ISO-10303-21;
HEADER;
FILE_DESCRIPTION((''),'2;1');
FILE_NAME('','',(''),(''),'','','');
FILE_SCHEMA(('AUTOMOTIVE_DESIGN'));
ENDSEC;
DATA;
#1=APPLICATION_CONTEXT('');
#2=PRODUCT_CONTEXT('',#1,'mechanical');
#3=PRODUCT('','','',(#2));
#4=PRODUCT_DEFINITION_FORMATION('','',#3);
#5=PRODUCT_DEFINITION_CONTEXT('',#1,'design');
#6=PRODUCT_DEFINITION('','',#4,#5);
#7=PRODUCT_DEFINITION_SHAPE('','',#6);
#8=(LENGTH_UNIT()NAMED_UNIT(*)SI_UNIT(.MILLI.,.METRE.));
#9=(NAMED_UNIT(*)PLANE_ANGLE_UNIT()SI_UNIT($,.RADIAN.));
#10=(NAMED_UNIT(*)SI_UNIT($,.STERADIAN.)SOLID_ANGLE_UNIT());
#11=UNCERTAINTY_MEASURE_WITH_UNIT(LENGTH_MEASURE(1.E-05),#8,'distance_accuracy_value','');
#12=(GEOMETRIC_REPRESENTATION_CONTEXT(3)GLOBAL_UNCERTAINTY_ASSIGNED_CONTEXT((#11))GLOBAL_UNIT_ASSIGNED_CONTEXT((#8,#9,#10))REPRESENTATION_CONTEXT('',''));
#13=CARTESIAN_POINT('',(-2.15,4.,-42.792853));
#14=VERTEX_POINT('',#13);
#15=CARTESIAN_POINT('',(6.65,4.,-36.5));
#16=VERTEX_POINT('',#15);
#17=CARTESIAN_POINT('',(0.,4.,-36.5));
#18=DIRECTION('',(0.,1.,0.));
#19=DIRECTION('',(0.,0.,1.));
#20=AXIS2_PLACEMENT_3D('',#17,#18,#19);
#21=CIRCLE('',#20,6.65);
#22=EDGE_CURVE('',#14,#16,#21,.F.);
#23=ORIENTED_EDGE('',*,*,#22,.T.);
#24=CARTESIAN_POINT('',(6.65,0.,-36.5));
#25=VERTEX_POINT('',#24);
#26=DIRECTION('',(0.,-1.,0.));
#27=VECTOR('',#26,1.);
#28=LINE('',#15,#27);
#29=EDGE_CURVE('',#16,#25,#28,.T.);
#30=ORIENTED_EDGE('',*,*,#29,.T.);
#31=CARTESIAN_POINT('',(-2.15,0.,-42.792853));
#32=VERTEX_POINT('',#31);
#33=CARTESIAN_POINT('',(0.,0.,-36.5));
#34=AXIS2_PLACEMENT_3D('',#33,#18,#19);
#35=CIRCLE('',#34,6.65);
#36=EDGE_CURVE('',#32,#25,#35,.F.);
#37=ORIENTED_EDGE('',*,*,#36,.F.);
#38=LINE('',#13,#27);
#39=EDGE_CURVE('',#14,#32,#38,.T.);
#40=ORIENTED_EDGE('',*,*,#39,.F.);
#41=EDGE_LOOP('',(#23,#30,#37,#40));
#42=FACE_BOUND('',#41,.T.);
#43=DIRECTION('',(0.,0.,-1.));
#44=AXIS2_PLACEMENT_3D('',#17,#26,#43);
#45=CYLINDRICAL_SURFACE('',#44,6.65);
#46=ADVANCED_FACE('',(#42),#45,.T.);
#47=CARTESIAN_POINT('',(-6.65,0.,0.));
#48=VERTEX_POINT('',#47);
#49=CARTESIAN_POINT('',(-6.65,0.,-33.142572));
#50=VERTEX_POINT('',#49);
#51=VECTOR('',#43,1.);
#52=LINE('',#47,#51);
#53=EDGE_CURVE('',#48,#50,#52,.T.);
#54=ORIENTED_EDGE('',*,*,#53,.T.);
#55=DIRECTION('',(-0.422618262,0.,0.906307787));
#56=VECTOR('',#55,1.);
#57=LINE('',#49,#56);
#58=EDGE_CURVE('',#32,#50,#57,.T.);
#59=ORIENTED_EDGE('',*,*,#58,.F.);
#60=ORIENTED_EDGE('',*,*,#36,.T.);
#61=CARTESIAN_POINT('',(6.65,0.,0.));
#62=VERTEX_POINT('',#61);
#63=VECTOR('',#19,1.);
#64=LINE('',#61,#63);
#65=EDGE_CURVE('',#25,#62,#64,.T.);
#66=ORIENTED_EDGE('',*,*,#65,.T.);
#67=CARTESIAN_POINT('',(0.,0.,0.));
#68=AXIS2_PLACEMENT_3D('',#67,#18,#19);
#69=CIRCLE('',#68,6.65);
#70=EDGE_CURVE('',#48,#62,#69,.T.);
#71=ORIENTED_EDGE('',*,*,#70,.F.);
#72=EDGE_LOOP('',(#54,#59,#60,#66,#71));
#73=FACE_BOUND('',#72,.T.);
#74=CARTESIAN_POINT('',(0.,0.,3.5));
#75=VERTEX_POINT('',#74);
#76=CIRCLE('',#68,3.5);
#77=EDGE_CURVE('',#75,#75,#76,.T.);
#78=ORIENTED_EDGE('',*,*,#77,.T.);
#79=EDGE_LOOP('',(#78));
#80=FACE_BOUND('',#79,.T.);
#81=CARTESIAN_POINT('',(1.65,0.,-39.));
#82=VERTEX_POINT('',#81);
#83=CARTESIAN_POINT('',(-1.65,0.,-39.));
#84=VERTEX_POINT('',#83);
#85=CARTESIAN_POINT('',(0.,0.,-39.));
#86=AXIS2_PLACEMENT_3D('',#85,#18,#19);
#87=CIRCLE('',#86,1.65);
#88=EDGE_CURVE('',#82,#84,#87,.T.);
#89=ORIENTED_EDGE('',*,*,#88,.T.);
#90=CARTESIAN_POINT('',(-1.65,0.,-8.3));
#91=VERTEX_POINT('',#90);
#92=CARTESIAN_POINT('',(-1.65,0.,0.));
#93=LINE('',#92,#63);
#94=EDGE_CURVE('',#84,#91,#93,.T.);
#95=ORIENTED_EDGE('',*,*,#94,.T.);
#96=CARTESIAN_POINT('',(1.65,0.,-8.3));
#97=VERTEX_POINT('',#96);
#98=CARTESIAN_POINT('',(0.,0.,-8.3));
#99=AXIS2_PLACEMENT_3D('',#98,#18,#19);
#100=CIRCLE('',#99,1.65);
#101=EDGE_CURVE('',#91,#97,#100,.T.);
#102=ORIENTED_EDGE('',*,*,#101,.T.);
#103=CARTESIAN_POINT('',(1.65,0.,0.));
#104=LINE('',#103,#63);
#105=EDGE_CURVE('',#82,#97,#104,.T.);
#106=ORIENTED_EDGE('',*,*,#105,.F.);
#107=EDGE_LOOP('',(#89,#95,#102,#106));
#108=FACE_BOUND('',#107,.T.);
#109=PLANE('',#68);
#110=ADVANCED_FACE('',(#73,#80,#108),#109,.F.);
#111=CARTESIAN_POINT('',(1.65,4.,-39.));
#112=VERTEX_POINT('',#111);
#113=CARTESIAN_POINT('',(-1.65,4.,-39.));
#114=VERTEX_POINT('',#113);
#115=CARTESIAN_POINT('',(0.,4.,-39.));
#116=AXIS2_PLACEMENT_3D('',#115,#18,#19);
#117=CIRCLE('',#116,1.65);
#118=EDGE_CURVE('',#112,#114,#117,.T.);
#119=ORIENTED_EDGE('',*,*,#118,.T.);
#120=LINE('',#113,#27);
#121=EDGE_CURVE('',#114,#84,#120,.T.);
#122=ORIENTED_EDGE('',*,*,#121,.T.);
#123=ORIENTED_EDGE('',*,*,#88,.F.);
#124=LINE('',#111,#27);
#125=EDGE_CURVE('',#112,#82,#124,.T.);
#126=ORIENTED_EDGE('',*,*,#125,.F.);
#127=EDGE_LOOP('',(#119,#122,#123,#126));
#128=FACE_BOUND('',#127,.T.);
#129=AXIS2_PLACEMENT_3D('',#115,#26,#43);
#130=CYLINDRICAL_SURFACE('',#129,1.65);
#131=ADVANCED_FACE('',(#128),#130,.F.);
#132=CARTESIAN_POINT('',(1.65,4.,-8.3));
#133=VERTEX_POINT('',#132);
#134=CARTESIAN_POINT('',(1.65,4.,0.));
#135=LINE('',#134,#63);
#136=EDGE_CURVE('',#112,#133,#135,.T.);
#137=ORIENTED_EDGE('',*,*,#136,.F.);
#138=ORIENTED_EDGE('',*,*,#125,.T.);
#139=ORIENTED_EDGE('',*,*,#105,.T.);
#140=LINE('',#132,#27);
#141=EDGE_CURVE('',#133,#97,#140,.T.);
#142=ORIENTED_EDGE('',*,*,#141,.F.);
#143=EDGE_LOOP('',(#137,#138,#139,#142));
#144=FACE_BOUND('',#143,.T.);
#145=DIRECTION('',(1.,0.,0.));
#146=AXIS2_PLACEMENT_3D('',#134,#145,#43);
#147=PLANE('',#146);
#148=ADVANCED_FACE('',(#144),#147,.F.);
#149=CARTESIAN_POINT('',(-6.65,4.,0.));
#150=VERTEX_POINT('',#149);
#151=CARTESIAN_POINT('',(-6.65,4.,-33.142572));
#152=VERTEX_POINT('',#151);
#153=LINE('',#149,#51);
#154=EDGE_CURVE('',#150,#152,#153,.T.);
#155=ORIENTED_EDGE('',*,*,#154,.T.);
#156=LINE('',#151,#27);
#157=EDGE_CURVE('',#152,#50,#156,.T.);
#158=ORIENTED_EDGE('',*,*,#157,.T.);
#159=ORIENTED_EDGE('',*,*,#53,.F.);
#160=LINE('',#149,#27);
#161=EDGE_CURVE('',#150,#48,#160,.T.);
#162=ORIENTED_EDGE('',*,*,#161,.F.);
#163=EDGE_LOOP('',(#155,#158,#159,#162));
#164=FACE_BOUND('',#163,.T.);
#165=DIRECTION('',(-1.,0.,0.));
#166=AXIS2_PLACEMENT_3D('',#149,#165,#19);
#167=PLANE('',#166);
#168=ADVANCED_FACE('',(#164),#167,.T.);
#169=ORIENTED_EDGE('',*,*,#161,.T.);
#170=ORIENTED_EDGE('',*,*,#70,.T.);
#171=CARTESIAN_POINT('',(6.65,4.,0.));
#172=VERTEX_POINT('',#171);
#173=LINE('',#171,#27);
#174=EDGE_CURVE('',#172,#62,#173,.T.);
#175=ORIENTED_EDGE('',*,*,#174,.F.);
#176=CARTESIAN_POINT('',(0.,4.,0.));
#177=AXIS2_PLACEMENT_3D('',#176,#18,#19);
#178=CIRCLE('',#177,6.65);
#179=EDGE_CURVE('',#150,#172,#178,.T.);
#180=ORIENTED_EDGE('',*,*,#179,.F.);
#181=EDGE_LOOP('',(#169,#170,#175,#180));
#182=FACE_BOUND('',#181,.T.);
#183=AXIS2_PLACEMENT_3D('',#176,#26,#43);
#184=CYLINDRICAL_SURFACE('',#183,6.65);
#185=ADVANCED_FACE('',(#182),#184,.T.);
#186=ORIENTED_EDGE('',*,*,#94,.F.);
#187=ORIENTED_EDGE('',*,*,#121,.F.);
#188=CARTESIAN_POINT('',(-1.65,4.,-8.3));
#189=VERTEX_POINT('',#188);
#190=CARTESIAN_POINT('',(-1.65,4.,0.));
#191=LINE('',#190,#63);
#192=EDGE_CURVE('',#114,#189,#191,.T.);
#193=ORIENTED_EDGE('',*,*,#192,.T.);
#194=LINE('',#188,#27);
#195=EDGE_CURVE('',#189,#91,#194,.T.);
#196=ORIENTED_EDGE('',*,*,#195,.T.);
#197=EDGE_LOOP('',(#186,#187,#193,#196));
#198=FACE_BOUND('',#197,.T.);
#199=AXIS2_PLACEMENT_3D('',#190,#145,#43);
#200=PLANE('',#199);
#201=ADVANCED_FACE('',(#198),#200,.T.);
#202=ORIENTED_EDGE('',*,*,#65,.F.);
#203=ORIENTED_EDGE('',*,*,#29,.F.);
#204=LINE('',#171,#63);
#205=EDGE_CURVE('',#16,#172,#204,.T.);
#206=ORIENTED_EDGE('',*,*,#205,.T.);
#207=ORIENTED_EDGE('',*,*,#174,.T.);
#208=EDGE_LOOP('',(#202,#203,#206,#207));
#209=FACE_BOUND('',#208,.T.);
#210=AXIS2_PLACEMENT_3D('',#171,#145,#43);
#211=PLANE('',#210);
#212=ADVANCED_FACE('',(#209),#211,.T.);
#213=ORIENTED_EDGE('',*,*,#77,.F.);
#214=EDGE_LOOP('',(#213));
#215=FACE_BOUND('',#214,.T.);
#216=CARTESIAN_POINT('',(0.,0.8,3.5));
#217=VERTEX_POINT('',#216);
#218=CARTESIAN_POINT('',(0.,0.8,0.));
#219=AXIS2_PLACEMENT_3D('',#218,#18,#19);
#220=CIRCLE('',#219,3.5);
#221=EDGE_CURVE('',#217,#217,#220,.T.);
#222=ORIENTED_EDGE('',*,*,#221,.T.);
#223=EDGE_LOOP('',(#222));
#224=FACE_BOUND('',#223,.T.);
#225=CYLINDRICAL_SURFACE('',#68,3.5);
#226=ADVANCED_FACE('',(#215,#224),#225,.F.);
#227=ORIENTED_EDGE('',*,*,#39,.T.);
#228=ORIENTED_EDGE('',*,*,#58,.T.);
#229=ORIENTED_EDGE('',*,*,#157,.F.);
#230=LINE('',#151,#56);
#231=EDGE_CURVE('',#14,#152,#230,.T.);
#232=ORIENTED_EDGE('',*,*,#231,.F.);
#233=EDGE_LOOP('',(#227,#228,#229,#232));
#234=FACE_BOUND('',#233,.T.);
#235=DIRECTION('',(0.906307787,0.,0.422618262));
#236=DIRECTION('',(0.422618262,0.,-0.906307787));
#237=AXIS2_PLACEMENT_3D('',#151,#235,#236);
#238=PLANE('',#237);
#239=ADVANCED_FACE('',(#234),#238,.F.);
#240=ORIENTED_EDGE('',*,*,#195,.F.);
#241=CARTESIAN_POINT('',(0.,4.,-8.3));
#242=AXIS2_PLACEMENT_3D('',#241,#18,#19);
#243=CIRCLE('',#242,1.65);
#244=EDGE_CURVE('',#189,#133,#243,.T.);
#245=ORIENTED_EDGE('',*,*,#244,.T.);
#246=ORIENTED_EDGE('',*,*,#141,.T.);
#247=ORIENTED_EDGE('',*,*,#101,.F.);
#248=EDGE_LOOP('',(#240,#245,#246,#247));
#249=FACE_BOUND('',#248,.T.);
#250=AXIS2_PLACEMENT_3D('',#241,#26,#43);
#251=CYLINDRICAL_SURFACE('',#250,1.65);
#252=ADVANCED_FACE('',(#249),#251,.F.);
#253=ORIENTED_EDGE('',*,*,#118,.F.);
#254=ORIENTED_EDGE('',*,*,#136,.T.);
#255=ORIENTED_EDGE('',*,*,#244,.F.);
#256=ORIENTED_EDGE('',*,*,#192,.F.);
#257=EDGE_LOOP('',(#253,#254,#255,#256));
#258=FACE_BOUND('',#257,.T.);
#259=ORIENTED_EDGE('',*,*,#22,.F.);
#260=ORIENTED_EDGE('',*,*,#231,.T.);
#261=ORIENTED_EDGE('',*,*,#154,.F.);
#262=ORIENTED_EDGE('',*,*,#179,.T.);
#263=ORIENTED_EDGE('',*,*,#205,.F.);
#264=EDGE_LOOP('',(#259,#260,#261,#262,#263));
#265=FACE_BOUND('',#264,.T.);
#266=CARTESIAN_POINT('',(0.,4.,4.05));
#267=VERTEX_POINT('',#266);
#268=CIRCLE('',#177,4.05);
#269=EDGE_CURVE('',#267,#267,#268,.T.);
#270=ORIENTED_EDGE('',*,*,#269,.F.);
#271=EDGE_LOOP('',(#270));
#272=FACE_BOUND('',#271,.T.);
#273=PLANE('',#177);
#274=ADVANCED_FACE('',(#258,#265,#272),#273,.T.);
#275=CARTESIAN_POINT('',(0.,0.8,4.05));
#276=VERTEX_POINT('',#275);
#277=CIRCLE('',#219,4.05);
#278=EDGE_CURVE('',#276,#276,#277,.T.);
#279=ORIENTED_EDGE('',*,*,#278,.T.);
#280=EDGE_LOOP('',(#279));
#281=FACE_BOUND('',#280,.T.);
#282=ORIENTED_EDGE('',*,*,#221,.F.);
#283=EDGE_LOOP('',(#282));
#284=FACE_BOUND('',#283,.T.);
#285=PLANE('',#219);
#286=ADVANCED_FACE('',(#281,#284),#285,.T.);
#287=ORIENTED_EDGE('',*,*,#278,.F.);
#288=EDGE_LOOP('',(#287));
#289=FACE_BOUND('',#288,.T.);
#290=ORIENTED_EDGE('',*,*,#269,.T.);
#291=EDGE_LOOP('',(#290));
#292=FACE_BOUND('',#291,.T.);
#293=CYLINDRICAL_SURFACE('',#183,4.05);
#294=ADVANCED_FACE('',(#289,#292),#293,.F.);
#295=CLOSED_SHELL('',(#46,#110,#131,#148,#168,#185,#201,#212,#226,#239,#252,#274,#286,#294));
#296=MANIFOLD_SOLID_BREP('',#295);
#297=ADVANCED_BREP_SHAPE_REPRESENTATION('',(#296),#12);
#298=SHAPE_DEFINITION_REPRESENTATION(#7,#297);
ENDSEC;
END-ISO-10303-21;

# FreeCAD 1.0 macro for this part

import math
import FreeCAD as App
import Part
import Sketcher
from FreeCAD import Vector
Q = App.Units.Quantity

doc = App.newDocument("Part")
body = doc.addObject("PartDesign::Body", "Body")

# Sketch on XZ plane
sketch1 = doc.addObject("Sketcher::SketchObject", "Sketch")
body.addObject(sketch1)
sketch1.AttachmentSupport = (doc.XZ_Plane, [""])
sketch1.MapMode = "FlatFace"
sketch1.addGeometry(Part.LineSegment(Vector(6.65, 0, 0), Vector(6.65, -36.5, 0)), False)
sketch1.addGeometry(Part.ArcOfCircle(Part.Circle(Vector(0, -36.5, 0), Vector(0, 0, 1), 6.65), math.radians(180), math.radians(360)), False)
sketch1.addGeometry(Part.LineSegment(Vector(-6.65, -36.5, 0), Vector(-6.65, 0, 0)), False)
sketch1.addGeometry(Part.ArcOfCircle(Part.Circle(Vector(0, 0, 0), Vector(0, 0, 1), 6.65), math.radians(0), math.radians(180)), False)
sketch1.addGeometry(Part.Circle(Vector(0, 0, 0), Vector(0, 0, 1), 4.05), False)
sketch1.addGeometry(Part.ArcOfCircle(Part.Circle(Vector(0, -8.3, 0), Vector(0, 0, 1), 1.65), math.radians(0), math.radians(90)), False)
sketch1.addGeometry(Part.ArcOfCircle(Part.Circle(Vector(0, -8.3, 0), Vector(0, 0, 1), 1.65), math.radians(90), math.radians(180)), False)
sketch1.addGeometry(Part.LineSegment(Vector(-1.65, -8.3, 0), Vector(-1.65, -39, 0)), False)
sketch1.addGeometry(Part.ArcOfCircle(Part.Circle(Vector(0, -39, 0), Vector(0, 0, 1), 1.65), math.radians(180), math.radians(360)), False)
sketch1.addGeometry(Part.LineSegment(Vector(1.65, -39, 0), Vector(1.65, -8.3, 0)), False)
sketch1.addConstraint(Sketcher.Constraint("Tangent", 0, 2, 1, 2))
sketch1.addConstraint(Sketcher.Constraint("Tangent", 1, 1, 2, 1))
sketch1.addConstraint(Sketcher.Constraint("Tangent", 2, 2, 3, 2))
sketch1.addConstraint(Sketcher.Constraint("Tangent", 3, 1, 0, 1))
sketch1.addConstraint(Sketcher.Constraint("Tangent", 5, 2, 6, 1))
sketch1.addConstraint(Sketcher.Constraint("Tangent", 6, 2, 7, 1))
sketch1.addConstraint(Sketcher.Constraint("Tangent", 7, 2, 8, 1))
sketch1.addConstraint(Sketcher.Constraint("Tangent", 8, 2, 9, 1))
sketch1.addConstraint(Sketcher.Constraint("Tangent", 9, 2, 5, 1))
sketch1.addConstraint(Sketcher.Constraint("Vertical", 0))
sketch1.addConstraint(Sketcher.Constraint("Vertical", 2))
sketch1.addConstraint(Sketcher.Constraint("Vertical", 7))
sketch1.addConstraint(Sketcher.Constraint("Vertical", 9))
sketch1.addConstraint(Sketcher.Constraint("Coincident", 3, 3, -1, 1))
sketch1.addConstraint(Sketcher.Constraint("Coincident", 4, 3, -1, 1))
sketch1.addConstraint(Sketcher.Constraint("Equal", 5, 6))
sketch1.addConstraint(Sketcher.Constraint("PointOnObject", 5, 3, -2))
sketch1.addConstraint(Sketcher.Constraint("PointOnObject", 5, 2, -2))
sketch1.addConstraint(Sketcher.Constraint("Diameter", 4, Q("8.1 mm")))
sketch1.addConstraint(Sketcher.Constraint("Radius", 1, Q("6.65 mm")))
sketch1.addConstraint(Sketcher.Constraint("Radius", 5, Q("1.65 mm")))
sketch1.addConstraint(Sketcher.Constraint("DistanceY", 0, 2, 0, 1, Q("36.5 mm")))
sketch1.addConstraint(Sketcher.Constraint("DistanceY", 7, 2, 7, 1, Q("30.7 mm")))
sketch1.addConstraint(Sketcher.Constraint("DistanceY", 8, 3, -1, 1, Q("39 mm")))
pad1 = doc.addObject("PartDesign::Pad", "Pad")
body.addObject(pad1)
pad1.Profile = sketch1
pad1.Length = 4
pad1.Reversed = True

# Sketch on XZ plane
sketch2 = doc.addObject("Sketcher::SketchObject", "Sketch001")
body.addObject(sketch2)
sketch2.AttachmentSupport = (doc.XZ_Plane, [""])
sketch2.MapMode = "FlatFace"
sketch2.addGeometry(Part.Circle(Vector(0, 0, 0), Vector(0, 0, 1), 4.05), False)
sketch2.addConstraint(Sketcher.Constraint("Coincident", 0, 3, -1, 1))
sketch2.addConstraint(Sketcher.Constraint("Diameter", 0, Q("8.1 mm")))
pad2 = doc.addObject("PartDesign::Pad", "Pad001")
body.addObject(pad2)
pad2.Profile = sketch2
pad2.Length = 0.8
pad2.Reversed = True

# Sketch on XZ plane
sketch3 = doc.addObject("Sketcher::SketchObject", "Sketch002")
body.addObject(sketch3)
sketch3.AttachmentSupport = (doc.XZ_Plane, [""])
sketch3.MapMode = "FlatFace"
sketch3.AttachmentOffset = App.Placement(Vector(0, 0, -0.8), App.Rotation())
sketch3.addGeometry(Part.Circle(Vector(0, 0, 0), Vector(0, 0, 1), 3.5), False)
sketch3.addConstraint(Sketcher.Constraint("Coincident", 0, 3, -1, 1))
sketch3.addConstraint(Sketcher.Constraint("Diameter", 0, Q("7 mm")))
pocket1 = doc.addObject("PartDesign::Pocket", "Pocket")
body.addObject(pocket1)
pocket1.Profile = sketch3
pocket1.Type = "ThroughAll"
pocket1.Reversed = True

# Sketch on XZ plane
sketch4 = doc.addObject("Sketcher::SketchObject", "Sketch003")
body.addObject(sketch4)
sketch4.AttachmentSupport = (doc.XZ_Plane, [""])
sketch4.MapMode = "FlatFace"
sketch4.addGeometry(Part.LineSegment(Vector(-2.15, -42.792853, 0), Vector(-6.65, -33.142572, 0)), False)
sketch4.addGeometry(Part.LineSegment(Vector(-6.65, -33.142572, 0), Vector(-6.65, -36.5, 0)), False)
sketch4.addGeometry(Part.ArcOfCircle(Part.Circle(Vector(0, -36.5, 0), Vector(0, 0, 1), 6.65), math.radians(180), math.radians(251.136886)), False)
sketch4.addConstraint(Sketcher.Constraint("Coincident", 0, 2, 1, 1))
sketch4.addConstraint(Sketcher.Constraint("Tangent", 1, 2, 2, 1))
sketch4.addConstraint(Sketcher.Constraint("Coincident", 2, 2, 0, 1))
sketch4.addConstraint(Sketcher.Constraint("Vertical", 1))
sketch4.addConstraint(Sketcher.Constraint("PointOnObject", 2, 3, -2))
sketch4.addConstraint(Sketcher.Constraint("Angle", 0, Q("115 deg")))
sketch4.addConstraint(Sketcher.Constraint("Radius", 2, Q("6.65 mm")))
sketch4.addConstraint(Sketcher.Constraint("DistanceY", 2, 3, -1, 1, Q("36.5 mm")))
sketch4.addConstraint(Sketcher.Constraint("DistanceX", 1, 2, 2, 2, Q("4.5 mm")))
pocket2 = doc.addObject("PartDesign::Pocket", "Pocket001")
body.addObject(pocket2)
pocket2.Profile = sketch4
pocket2.Type = "ThroughAll"

doc.recompute()
